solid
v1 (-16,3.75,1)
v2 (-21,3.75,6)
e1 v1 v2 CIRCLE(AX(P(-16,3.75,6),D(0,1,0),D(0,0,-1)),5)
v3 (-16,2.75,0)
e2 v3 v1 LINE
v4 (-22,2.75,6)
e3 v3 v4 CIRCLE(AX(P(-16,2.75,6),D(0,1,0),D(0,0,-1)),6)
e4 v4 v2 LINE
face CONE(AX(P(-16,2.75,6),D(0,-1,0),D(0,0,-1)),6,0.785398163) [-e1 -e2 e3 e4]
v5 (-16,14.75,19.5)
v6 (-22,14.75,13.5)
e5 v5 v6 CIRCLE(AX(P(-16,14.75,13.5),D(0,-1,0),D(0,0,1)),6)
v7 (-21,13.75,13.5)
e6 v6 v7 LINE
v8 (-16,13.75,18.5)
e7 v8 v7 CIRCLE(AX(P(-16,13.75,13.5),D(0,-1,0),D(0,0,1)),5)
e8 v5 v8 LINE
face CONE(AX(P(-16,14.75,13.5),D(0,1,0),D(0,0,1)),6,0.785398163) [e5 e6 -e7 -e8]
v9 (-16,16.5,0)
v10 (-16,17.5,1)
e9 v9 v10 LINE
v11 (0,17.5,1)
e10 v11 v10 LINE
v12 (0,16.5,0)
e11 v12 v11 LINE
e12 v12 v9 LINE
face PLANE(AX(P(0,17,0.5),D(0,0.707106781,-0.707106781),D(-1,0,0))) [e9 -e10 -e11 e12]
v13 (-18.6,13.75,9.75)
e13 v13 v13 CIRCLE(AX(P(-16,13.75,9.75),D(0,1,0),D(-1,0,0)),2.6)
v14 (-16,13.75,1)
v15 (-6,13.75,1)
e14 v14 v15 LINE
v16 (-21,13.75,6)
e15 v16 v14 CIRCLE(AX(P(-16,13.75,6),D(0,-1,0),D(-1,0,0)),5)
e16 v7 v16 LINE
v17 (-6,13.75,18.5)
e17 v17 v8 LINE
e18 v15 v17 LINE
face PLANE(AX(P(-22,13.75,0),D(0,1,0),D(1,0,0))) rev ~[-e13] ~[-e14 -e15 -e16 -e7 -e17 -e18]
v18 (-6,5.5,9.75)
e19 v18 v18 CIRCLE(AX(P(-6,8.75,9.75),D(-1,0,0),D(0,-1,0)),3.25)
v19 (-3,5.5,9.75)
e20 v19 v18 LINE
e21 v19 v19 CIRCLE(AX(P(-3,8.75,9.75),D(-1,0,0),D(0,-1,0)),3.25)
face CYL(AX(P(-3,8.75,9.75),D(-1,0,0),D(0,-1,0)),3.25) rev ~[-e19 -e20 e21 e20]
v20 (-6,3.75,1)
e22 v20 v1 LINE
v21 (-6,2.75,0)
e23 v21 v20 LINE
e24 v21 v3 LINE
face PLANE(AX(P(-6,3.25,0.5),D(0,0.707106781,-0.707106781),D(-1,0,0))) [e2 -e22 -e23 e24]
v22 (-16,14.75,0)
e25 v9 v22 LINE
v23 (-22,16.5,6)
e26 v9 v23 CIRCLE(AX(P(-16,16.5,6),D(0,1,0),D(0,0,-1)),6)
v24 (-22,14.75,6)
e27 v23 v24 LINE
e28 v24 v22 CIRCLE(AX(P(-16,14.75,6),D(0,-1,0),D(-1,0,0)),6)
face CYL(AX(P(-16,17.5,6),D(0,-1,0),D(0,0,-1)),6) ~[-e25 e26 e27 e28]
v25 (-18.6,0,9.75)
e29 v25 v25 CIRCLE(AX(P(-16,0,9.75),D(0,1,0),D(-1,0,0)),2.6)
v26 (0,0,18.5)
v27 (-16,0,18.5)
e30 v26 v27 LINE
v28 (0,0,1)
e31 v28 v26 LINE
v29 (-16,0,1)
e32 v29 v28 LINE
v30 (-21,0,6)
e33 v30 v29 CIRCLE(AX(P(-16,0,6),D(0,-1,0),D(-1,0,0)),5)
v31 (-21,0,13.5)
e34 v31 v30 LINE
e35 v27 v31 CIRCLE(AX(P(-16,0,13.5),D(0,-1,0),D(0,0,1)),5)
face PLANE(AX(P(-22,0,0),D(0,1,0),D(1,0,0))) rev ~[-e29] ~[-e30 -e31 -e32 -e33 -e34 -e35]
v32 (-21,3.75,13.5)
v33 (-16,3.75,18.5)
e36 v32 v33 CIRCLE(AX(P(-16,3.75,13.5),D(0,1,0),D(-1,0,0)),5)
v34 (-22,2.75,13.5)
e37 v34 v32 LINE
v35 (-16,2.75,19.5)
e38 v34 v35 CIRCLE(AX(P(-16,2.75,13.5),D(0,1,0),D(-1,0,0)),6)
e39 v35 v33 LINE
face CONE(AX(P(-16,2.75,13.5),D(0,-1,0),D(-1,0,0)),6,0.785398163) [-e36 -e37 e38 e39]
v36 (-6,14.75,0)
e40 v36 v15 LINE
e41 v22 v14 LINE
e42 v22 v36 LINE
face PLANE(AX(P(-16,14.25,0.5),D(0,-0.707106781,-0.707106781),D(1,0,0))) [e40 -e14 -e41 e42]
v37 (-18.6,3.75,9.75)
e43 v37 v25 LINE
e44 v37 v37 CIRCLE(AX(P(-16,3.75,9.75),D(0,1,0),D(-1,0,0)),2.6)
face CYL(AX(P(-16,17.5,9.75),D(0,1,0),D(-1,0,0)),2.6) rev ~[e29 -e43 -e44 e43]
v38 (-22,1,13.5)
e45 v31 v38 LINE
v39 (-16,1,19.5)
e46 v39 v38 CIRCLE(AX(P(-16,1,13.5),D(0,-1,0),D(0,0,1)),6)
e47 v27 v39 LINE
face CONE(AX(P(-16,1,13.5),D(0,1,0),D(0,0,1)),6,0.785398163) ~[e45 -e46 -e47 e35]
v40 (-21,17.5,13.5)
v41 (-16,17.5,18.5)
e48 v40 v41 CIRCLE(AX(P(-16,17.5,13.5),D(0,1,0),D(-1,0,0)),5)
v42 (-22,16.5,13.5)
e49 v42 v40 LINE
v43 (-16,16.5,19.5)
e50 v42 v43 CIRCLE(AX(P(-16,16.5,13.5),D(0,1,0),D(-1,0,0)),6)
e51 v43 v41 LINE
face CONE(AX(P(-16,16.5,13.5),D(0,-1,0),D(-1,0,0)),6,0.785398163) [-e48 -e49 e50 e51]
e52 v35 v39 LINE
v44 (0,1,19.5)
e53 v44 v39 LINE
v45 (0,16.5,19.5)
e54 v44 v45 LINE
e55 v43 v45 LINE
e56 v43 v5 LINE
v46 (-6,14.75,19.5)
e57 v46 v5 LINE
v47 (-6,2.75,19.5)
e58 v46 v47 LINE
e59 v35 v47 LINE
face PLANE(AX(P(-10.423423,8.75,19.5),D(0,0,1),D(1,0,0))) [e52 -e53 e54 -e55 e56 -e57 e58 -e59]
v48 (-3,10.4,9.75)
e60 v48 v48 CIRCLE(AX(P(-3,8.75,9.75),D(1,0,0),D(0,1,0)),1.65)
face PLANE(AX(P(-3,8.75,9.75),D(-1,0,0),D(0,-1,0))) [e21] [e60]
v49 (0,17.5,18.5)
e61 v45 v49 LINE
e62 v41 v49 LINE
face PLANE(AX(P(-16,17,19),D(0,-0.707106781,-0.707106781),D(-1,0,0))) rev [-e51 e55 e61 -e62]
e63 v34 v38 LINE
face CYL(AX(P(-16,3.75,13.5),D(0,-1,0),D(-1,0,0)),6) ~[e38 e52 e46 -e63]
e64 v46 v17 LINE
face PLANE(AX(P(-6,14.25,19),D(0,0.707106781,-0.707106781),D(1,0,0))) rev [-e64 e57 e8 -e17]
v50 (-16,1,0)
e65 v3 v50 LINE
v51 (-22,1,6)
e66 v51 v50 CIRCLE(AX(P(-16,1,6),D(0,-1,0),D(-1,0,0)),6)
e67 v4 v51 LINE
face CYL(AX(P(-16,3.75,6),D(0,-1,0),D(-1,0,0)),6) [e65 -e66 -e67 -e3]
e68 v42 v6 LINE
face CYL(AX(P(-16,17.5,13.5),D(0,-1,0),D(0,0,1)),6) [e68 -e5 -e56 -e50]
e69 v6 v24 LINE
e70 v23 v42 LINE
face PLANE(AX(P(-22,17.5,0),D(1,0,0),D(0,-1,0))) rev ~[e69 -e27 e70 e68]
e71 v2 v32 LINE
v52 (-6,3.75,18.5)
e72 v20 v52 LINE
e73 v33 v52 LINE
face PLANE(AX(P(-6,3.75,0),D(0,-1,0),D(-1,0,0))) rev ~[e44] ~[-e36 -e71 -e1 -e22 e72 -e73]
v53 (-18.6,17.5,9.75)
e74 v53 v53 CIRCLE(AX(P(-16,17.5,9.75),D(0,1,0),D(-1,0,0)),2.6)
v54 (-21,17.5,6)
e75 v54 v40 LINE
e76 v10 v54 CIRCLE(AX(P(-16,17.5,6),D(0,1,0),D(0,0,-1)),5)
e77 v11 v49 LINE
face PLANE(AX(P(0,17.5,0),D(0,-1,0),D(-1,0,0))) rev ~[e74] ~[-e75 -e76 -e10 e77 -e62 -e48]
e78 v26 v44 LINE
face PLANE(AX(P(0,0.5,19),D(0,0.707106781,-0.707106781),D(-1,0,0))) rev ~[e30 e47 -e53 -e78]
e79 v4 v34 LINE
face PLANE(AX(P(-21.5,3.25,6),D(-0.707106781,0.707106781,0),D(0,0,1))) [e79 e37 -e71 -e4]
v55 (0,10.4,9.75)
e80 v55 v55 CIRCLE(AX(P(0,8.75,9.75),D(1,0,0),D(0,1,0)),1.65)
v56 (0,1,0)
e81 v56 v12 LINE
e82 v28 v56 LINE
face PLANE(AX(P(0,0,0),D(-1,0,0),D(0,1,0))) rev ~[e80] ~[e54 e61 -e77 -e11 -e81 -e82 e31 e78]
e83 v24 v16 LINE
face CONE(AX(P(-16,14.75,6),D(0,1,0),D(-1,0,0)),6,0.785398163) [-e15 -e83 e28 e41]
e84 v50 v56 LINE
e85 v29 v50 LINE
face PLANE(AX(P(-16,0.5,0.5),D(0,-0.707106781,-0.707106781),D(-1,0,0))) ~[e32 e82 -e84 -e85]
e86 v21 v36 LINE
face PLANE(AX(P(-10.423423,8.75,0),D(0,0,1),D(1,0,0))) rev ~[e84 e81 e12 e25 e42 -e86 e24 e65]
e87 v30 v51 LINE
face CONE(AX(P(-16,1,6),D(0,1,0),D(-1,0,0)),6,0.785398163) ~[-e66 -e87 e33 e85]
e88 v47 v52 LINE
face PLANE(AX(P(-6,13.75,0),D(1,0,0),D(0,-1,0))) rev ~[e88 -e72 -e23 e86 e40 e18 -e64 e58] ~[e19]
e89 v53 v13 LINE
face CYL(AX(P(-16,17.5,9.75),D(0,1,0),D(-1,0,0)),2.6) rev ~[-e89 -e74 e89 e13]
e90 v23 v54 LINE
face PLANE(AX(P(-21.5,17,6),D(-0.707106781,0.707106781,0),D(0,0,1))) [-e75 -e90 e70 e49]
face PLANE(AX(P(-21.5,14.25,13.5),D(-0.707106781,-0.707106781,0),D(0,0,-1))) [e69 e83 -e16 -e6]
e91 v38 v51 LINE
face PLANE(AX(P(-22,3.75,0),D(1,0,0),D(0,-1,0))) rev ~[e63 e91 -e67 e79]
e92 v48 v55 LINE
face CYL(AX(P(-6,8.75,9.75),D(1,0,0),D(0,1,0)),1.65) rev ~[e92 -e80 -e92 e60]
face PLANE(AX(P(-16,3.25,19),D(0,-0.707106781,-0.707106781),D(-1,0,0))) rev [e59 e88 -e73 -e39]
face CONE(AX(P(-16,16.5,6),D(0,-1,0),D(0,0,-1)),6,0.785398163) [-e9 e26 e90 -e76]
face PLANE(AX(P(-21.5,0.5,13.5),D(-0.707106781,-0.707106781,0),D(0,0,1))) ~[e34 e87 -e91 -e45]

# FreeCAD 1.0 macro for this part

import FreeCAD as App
import Part
import Sketcher
from FreeCAD import Vector
Q = App.Units.Quantity


def edges_at(feature, points):
    """Names of the edges that pass closest to the given points."""
    edges = feature.Shape.Edges
    near = lambda p: min(range(len(edges)), key=lambda i: edges[i].distToShape(Part.Vertex(*p))[0])
    return sorted({f"Edge{near(p) + 1}" for p in points})

doc = App.newDocument("Part")
body = doc.addObject("PartDesign::Body", "Body")

# Sketch on XY plane
sketch1 = body.newObject("Sketcher::SketchObject", "Sketch")
sketch1.AttachmentSupport = (doc.getObject("XY_Plane"), [""])
sketch1.MapMode = "FlatFace"
sketch1.addGeometry([
    Part.LineSegment(Vector(-22, 0, 0), Vector(0, 0, 0)),  # 0
    Part.LineSegment(Vector(0, 0, 0), Vector(0, 17.5, 0)),  # 1
    Part.LineSegment(Vector(0, 17.5, 0), Vector(-22, 17.5, 0)),  # 2
    Part.LineSegment(Vector(-22, 17.5, 0), Vector(-22, 13.75, 0)),  # 3
    Part.LineSegment(Vector(-22, 13.75, 0), Vector(-6, 13.75, 0)),  # 4
    Part.LineSegment(Vector(-6, 13.75, 0), Vector(-6, 3.75, 0)),  # 5
    Part.LineSegment(Vector(-6, 3.75, 0), Vector(-22, 3.75, 0)),  # 6
    Part.LineSegment(Vector(-22, 3.75, 0), Vector(-22, 0, 0)),  # 7
], False)
sketch1.addConstraint([
    Sketcher.Constraint("Coincident", 0, 2, 1, 1),
    Sketcher.Constraint("Coincident", 1, 2, 2, 1),
    Sketcher.Constraint("Coincident", 2, 2, 3, 1),
    Sketcher.Constraint("Coincident", 3, 2, 4, 1),
    Sketcher.Constraint("Coincident", 4, 2, 5, 1),
    Sketcher.Constraint("Coincident", 5, 2, 6, 1),
    Sketcher.Constraint("Coincident", 6, 2, 7, 1),
    Sketcher.Constraint("Coincident", 7, 2, 0, 1),
    Sketcher.Constraint("Horizontal", 0),
    Sketcher.Constraint("Vertical", 1),
    Sketcher.Constraint("Horizontal", 2),
    Sketcher.Constraint("Vertical", 3),
    Sketcher.Constraint("Horizontal", 4),
    Sketcher.Constraint("Vertical", 5),
    Sketcher.Constraint("Horizontal", 6),
    Sketcher.Constraint("Vertical", 7),
    Sketcher.Constraint("Coincident", 0, 2, -1, 1),
    Sketcher.Constraint("Vertical", 3, 2, 6, 2),
    Sketcher.Constraint("Equal", 3, 7),
    Sketcher.Constraint("DistanceX", 0, 1, 0, 2, Q("22 mm")),
    Sketcher.Constraint("DistanceX", 4, 1, 4, 2, Q("16 mm")),
    Sketcher.Constraint("DistanceY", 5, 2, 5, 1, Q("10 mm")),
    Sketcher.Constraint("DistanceY", 1, 1, 1, 2, Q("17.5 mm")),
])
pad1 = body.newObject("PartDesign::Pad", "Pad")
pad1.Profile = sketch1
pad1.Length = 19.5

# Sketch on XZ plane
sketch2 = body.newObject("Sketcher::SketchObject", "Sketch001")
sketch2.AttachmentSupport = (doc.getObject("XZ_Plane"), [""])
sketch2.MapMode = "FlatFace"
sketch2.AttachmentOffset = App.Placement(Vector(0, 0, -17.5), App.Rotation())
sketch2.addGeometry(Part.Circle(Vector(-16, 9.75, 0), Vector(0, 0, 1), 2.6), False)
sketch2.addConstraint([
    Sketcher.Constraint("Diameter", 0, Q("5.2 mm")),
    Sketcher.Constraint("DistanceX", 0, 3, -1, 1, Q("16 mm")),
    Sketcher.Constraint("DistanceY", -1, 1, 0, 3, Q("9.75 mm")),
])
pocket1 = body.newObject("PartDesign::Pocket", "Pocket")
pocket1.Profile = sketch2
pocket1.Type = "ThroughAll"
pocket1.Reversed = True

# Sketch on YZ plane
sketch3 = body.newObject("Sketcher::SketchObject", "Sketch002")
sketch3.AttachmentSupport = (doc.getObject("YZ_Plane"), [""])
sketch3.MapMode = "FlatFace"
sketch3.AttachmentOffset = App.Placement(Vector(0, 0, -6), App.Rotation())
sketch3.addGeometry(Part.Circle(Vector(8.75, 9.75, 0), Vector(0, 0, 1), 1.65), False)
sketch3.addConstraint([
    Sketcher.Constraint("Diameter", 0, Q("3.3 mm")),
    Sketcher.Constraint("DistanceX", -1, 1, 0, 3, Q("8.75 mm")),
    Sketcher.Constraint("DistanceY", -1, 1, 0, 3, Q("9.75 mm")),
])
doc.recompute()
hole = body.newObject("PartDesign::Hole", "Hole")
hole.Profile = sketch3
hole.ThreadType = "None"
hole.Diameter = 3.3
hole.DepthType = "ThroughAll"
hole.HoleCutType = "Counterbore"
hole.HoleCutDiameter = 6.5
hole.HoleCutDepth = 3
hole.Reversed = True
doc.recompute()

fillet = body.newObject("PartDesign::Fillet", "Fillet")
fillet.Base = (hole, edges_at(hole, [
    (-22, 15.625, 0),
    (-22, 15.625, 19.5),
    (-22, 1.875, 19.5),
    (-22, 1.875, 0),
]))
fillet.Radius = 6
doc.recompute()

chamfer = body.newObject("PartDesign::Chamfer", "Chamfer")
chamfer.Base = (fillet, edges_at(fillet, [
    (-8, 17.5, 0),
    (-8, 0, 0),
    (-11, 3.75, 0),
    (-11, 13.75, 0),
]))
chamfer.Size = 1

doc.recompute()
